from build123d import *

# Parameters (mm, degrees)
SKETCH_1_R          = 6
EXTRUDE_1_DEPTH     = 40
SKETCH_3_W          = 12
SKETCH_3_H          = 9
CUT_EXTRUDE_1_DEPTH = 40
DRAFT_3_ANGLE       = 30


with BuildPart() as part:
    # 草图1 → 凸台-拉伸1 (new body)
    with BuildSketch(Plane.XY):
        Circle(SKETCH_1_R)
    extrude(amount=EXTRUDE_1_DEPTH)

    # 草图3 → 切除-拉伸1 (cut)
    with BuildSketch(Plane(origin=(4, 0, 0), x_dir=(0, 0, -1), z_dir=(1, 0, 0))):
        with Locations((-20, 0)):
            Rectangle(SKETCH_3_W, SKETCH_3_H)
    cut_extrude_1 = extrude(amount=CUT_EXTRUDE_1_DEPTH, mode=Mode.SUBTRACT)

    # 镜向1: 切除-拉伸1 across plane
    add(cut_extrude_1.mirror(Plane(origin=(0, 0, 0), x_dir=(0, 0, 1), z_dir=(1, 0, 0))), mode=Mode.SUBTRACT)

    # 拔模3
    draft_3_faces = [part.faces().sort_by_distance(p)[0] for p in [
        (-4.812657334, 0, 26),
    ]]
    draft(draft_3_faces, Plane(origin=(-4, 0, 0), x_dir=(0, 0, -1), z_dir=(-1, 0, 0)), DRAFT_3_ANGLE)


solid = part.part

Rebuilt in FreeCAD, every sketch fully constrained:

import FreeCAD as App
import Part
import Sketcher
from FreeCAD import Vector
Q = App.Units.Quantity


def faces_at(feature, points):
    """Names of the faces that lie closest to the given points."""
    faces = feature.Shape.Faces
    near = lambda p: min(range(len(faces)), key=lambda i: faces[i].distToShape(Part.Vertex(*p))[0])
    return sorted({f"Face{near(p) + 1}" for p in points})

doc = App.newDocument("Part")
body = doc.addObject("PartDesign::Body", "Body")

# Sketch on XY plane
sketch1 = doc.addObject("Sketcher::SketchObject", "Sketch")
body.addObject(sketch1)
sketch1.AttachmentSupport = (doc.XY_Plane, [""])
sketch1.MapMode = "FlatFace"
sketch1.addGeometry(Part.Circle(Vector(0, 0, 0), Vector(0, 0, 1), 6), False)
sketch1.addConstraint([
    Sketcher.Constraint("Coincident", 0, 3, -1, 1),
    Sketcher.Constraint("Diameter", 0, Q("12 mm")),
])
pad1 = doc.addObject("PartDesign::Pad", "Pad")
body.addObject(pad1)
pad1.Profile = sketch1
pad1.Length = 40

# Sketch on YZ plane
sketch2 = doc.addObject("Sketcher::SketchObject", "Sketch001")
body.addObject(sketch2)
sketch2.AttachmentSupport = (doc.YZ_Plane, [""])
sketch2.MapMode = "FlatFace"
sketch2.AttachmentOffset = App.Placement(Vector(0, 0, 4), App.Rotation())
sketch2.addGeometry([
    Part.LineSegment(Vector(4, 26, 0), Vector(-4, 26, 0)),
    Part.LineSegment(Vector(-4, 26, 0), Vector(-4, 14, 0)),
    Part.LineSegment(Vector(-4, 14, 0), Vector(4, 14, 0)),
    Part.LineSegment(Vector(4, 14, 0), Vector(4, 26, 0)),
], False)
sketch2.addConstraint([
    Sketcher.Constraint("Coincident", 0, 2, 1, 1),
    Sketcher.Constraint("Coincident", 1, 2, 2, 1),
    Sketcher.Constraint("Coincident", 2, 2, 3, 1),
    Sketcher.Constraint("Coincident", 3, 2, 0, 1),
    Sketcher.Constraint("Horizontal", 0),
    Sketcher.Constraint("Vertical", 1),
    Sketcher.Constraint("Horizontal", 2),
    Sketcher.Constraint("Vertical", 3),
    Sketcher.Constraint("DistanceX", 0, 2, 0, 1, Q("9 mm")),
    Sketcher.Constraint("DistanceY", 1, 2, 1, 1, Q("12 mm")),
    Sketcher.Constraint("DistanceY", -1, 1, 0, 2, Q("26 mm")),
    Sketcher.Constraint("DistanceX", 0, 2, -1, 1, Q("4.5 mm")),
])
pocket1 = doc.addObject("PartDesign::Pocket", "Pocket")
body.addObject(pocket1)
pocket1.Profile = sketch2
pocket1.Length = 40
pocket1.Reversed = True
doc.recompute()

mirrored = doc.addObject("PartDesign::Mirrored", "Mirrored")
body.addObject(mirrored)
mirrored.Originals = [pocket1]
mirrored.MirrorPlane = (doc.YZ_Plane, [""])
body.Tip = mirrored
doc.recompute()

datumplane = doc.addObject("PartDesign::Plane", "DatumPlane")
body.addObject(datumplane)
datumplane.AttachmentSupport = (doc.YZ_Plane, [""])
datumplane.MapMode = "FlatFace"
datumplane.AttachmentOffset = App.Placement(Vector(0, 0, -4), App.Rotation())
draft = doc.addObject("PartDesign::Draft", "Draft")
body.addObject(draft)
draft.Base = (mirrored, faces_at(mirrored, [(-5, 0, 26)]))
draft.NeutralPlane = (datumplane, [""])
draft.Angle = 30
draft.Reversed = True

doc.recompute()
